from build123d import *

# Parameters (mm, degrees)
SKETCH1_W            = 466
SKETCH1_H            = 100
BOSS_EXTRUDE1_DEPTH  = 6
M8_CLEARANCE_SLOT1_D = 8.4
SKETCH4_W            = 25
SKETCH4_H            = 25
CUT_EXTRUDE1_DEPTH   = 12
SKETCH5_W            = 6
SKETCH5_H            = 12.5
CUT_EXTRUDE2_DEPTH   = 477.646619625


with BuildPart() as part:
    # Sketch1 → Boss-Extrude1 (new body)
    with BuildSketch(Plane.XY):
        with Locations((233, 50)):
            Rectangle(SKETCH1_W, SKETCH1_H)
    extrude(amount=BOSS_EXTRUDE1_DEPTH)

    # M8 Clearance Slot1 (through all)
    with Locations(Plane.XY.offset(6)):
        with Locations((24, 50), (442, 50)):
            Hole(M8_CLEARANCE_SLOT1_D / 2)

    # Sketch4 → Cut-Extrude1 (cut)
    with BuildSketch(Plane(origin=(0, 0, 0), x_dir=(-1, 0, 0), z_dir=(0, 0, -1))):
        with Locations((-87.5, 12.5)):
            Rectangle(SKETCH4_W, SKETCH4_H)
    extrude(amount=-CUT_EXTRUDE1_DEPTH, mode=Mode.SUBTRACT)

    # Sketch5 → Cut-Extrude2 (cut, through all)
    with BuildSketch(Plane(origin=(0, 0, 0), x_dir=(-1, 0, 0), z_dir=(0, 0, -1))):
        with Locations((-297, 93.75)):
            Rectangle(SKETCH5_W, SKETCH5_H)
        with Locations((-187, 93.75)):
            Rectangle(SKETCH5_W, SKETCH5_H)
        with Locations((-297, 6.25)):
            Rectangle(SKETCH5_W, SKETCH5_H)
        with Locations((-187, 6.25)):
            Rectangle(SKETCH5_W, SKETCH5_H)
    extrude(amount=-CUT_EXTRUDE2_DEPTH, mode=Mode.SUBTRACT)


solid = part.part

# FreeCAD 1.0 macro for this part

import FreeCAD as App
import Part
import Sketcher

V = App.Vector
Q = App.Units.Quantity


def add_polygon(sketch, points):
    """Adds a closed chain of lines whose ends are joined by coincident constraints."""
    first, n = sketch.GeometryCount, len(points)
    for a, b in zip(points, points[1:] + points[:1]):
        sketch.addGeometry(Part.LineSegment(App.Vector(*a, 0), App.Vector(*b, 0)), False)
    for i in range(n):
        sketch.addConstraint(Sketcher.Constraint("Coincident", first + i, 2, first + (i + 1) % n, 1))

doc = App.newDocument("Part")
body = doc.addObject("PartDesign::Body", "Body")

sketch1 = doc.addObject("Sketcher::SketchObject", "Sketch")
body.addObject(sketch1)
sketch1.AttachmentSupport = (doc.XY_Plane, [""])
sketch1.MapMode = "FlatFace"
add_polygon(sketch1, [(0, 100), (0, 0), (466, 0), (466, 100)])
sketch1.addConstraint([
    Sketcher.Constraint("Vertical", 0),
    Sketcher.Constraint("Horizontal", 1),
    Sketcher.Constraint("Vertical", 2),
    Sketcher.Constraint("Horizontal", 3),
    Sketcher.Constraint("Coincident", 0, 2, -1, 1),
    Sketcher.Constraint("DistanceX", 1, 1, 1, 2, Q("466 mm")),
    Sketcher.Constraint("DistanceY", 0, 2, 0, 1, Q("100 mm")),
])
pad1 = doc.addObject("PartDesign::Pad", "Pad")
body.addObject(pad1)
pad1.Profile = sketch1
pad1.Length = 6

sketch2 = doc.addObject("Sketcher::SketchObject", "Sketch001")
body.addObject(sketch2)
sketch2.AttachmentSupport = (doc.XY_Plane, [""])
sketch2.MapMode = "FlatFace"
sketch2.AttachmentOffset = App.Placement(V(0, 0, 6), App.Rotation())
sketch2.addGeometry([
    Part.Circle(V(24, 50, 0), V(0, 0, 1), 4.2),
    Part.Circle(V(442, 50, 0), V(0, 0, 1), 4.2),
], False)
sketch2.addConstraint([
    Sketcher.Constraint("Equal", 0, 1),
    Sketcher.Constraint("Horizontal", 0, 3, 1, 3),
    Sketcher.Constraint("Diameter", 0, Q("8.4 mm")),
    Sketcher.Constraint("DistanceX", -1, 1, 0, 3, Q("24 mm")),
    Sketcher.Constraint("DistanceY", -1, 1, 0, 3, Q("50 mm")),
    Sketcher.Constraint("DistanceX", -1, 1, 1, 3, Q("442 mm")),
])
doc.recompute()
hole = doc.addObject("PartDesign::Hole", "Hole")
body.addObject(hole)
hole.Profile = sketch2
hole.ThreadType = "None"
hole.Diameter = 8.4
hole.DepthType = "ThroughAll"

sketch3 = doc.addObject("Sketcher::SketchObject", "Sketch002")
body.addObject(sketch3)
sketch3.AttachmentSupport = (doc.XY_Plane, [""])
sketch3.MapMode = "FlatFace"
add_polygon(sketch3, [(100, 25), (100, 0), (75, 0), (75, 25)])
sketch3.addConstraint([
    Sketcher.Constraint("Vertical", 0),
    Sketcher.Constraint("Horizontal", 1),
    Sketcher.Constraint("Vertical", 2),
    Sketcher.Constraint("Horizontal", 3),
    Sketcher.Constraint("PointOnObject", 0, 2, -1),
    Sketcher.Constraint("Equal", 3, 0),
    Sketcher.Constraint("DistanceX", 1, 2, 1, 1, Q("25 mm")),
    Sketcher.Constraint("DistanceX", -1, 1, 0, 2, Q("100 mm")),
])
pocket1 = doc.addObject("PartDesign::Pocket", "Pocket")
body.addObject(pocket1)
pocket1.Profile = sketch3
pocket1.Length = 12
pocket1.Reversed = True

sketch4 = doc.addObject("Sketcher::SketchObject", "Sketch003")
body.addObject(sketch4)
sketch4.AttachmentSupport = (doc.XY_Plane, [""])
sketch4.MapMode = "FlatFace"
add_polygon(sketch4, [(300, 100), (300, 87.5), (294, 87.5), (294, 100)])
add_polygon(sketch4, [(190, 100), (190, 87.5), (184, 87.5), (184, 100)])
add_polygon(sketch4, [(300, 12.5), (300, 0), (294, 0), (294, 12.5)])
add_polygon(sketch4, [(190, 12.5), (190, 0), (184, 0), (184, 12.5)])
sketch4.addConstraint([
    Sketcher.Constraint("Vertical", 0),
    Sketcher.Constraint("Horizontal", 1),
    Sketcher.Constraint("Vertical", 2),
    Sketcher.Constraint("Horizontal", 3),
    Sketcher.Constraint("Vertical", 4),
    Sketcher.Constraint("Horizontal", 5),
    Sketcher.Constraint("Vertical", 6),
    Sketcher.Constraint("Horizontal", 7),
    Sketcher.Constraint("Vertical", 8),
    Sketcher.Constraint("Horizontal", 9),
    Sketcher.Constraint("Vertical", 10),
    Sketcher.Constraint("Horizontal", 11),
    Sketcher.Constraint("Vertical", 12),
    Sketcher.Constraint("Horizontal", 13),
    Sketcher.Constraint("Vertical", 14),
    Sketcher.Constraint("Horizontal", 15),
    Sketcher.Constraint("PointOnObject", 8, 2, -1),
    Sketcher.Constraint("PointOnObject", 12, 2, -1),
    Sketcher.Constraint("Horizontal", 1, 2, 4, 2),
    Sketcher.Constraint("Horizontal", 3, 2, 6, 2),
    Sketcher.Constraint("Horizontal", 11, 2, 14, 2),
    Sketcher.Constraint("Vertical", 3, 2, 8, 2),
    Sketcher.Constraint("Vertical", 2, 2, 9, 2),
    Sketcher.Constraint("Vertical", 7, 2, 12, 2),
    Sketcher.Constraint("Vertical", 6, 2, 13, 2),
    Sketcher.Constraint("Equal", 3, 5),
    Sketcher.Constraint("Equal", 6, 8),
    Sketcher.Constraint("DistanceX", 1, 2, 1, 1, Q("6 mm")),
    Sketcher.Constraint("DistanceY", 0, 2, 0, 1, Q("12.5 mm")),
    Sketcher.Constraint("DistanceX", -1, 1, 0, 2, Q("300 mm")),
    Sketcher.Constraint("DistanceY", -1, 1, 2, 2, Q("100 mm")),
    Sketcher.Constraint("DistanceX", -1, 1, 4, 2, Q("190 mm")),
])
pocket2 = doc.addObject("PartDesign::Pocket", "Pocket001")
body.addObject(pocket2)
pocket2.Profile = sketch4
pocket2.Type = "ThroughAll"
pocket2.Reversed = True

doc.recompute()
